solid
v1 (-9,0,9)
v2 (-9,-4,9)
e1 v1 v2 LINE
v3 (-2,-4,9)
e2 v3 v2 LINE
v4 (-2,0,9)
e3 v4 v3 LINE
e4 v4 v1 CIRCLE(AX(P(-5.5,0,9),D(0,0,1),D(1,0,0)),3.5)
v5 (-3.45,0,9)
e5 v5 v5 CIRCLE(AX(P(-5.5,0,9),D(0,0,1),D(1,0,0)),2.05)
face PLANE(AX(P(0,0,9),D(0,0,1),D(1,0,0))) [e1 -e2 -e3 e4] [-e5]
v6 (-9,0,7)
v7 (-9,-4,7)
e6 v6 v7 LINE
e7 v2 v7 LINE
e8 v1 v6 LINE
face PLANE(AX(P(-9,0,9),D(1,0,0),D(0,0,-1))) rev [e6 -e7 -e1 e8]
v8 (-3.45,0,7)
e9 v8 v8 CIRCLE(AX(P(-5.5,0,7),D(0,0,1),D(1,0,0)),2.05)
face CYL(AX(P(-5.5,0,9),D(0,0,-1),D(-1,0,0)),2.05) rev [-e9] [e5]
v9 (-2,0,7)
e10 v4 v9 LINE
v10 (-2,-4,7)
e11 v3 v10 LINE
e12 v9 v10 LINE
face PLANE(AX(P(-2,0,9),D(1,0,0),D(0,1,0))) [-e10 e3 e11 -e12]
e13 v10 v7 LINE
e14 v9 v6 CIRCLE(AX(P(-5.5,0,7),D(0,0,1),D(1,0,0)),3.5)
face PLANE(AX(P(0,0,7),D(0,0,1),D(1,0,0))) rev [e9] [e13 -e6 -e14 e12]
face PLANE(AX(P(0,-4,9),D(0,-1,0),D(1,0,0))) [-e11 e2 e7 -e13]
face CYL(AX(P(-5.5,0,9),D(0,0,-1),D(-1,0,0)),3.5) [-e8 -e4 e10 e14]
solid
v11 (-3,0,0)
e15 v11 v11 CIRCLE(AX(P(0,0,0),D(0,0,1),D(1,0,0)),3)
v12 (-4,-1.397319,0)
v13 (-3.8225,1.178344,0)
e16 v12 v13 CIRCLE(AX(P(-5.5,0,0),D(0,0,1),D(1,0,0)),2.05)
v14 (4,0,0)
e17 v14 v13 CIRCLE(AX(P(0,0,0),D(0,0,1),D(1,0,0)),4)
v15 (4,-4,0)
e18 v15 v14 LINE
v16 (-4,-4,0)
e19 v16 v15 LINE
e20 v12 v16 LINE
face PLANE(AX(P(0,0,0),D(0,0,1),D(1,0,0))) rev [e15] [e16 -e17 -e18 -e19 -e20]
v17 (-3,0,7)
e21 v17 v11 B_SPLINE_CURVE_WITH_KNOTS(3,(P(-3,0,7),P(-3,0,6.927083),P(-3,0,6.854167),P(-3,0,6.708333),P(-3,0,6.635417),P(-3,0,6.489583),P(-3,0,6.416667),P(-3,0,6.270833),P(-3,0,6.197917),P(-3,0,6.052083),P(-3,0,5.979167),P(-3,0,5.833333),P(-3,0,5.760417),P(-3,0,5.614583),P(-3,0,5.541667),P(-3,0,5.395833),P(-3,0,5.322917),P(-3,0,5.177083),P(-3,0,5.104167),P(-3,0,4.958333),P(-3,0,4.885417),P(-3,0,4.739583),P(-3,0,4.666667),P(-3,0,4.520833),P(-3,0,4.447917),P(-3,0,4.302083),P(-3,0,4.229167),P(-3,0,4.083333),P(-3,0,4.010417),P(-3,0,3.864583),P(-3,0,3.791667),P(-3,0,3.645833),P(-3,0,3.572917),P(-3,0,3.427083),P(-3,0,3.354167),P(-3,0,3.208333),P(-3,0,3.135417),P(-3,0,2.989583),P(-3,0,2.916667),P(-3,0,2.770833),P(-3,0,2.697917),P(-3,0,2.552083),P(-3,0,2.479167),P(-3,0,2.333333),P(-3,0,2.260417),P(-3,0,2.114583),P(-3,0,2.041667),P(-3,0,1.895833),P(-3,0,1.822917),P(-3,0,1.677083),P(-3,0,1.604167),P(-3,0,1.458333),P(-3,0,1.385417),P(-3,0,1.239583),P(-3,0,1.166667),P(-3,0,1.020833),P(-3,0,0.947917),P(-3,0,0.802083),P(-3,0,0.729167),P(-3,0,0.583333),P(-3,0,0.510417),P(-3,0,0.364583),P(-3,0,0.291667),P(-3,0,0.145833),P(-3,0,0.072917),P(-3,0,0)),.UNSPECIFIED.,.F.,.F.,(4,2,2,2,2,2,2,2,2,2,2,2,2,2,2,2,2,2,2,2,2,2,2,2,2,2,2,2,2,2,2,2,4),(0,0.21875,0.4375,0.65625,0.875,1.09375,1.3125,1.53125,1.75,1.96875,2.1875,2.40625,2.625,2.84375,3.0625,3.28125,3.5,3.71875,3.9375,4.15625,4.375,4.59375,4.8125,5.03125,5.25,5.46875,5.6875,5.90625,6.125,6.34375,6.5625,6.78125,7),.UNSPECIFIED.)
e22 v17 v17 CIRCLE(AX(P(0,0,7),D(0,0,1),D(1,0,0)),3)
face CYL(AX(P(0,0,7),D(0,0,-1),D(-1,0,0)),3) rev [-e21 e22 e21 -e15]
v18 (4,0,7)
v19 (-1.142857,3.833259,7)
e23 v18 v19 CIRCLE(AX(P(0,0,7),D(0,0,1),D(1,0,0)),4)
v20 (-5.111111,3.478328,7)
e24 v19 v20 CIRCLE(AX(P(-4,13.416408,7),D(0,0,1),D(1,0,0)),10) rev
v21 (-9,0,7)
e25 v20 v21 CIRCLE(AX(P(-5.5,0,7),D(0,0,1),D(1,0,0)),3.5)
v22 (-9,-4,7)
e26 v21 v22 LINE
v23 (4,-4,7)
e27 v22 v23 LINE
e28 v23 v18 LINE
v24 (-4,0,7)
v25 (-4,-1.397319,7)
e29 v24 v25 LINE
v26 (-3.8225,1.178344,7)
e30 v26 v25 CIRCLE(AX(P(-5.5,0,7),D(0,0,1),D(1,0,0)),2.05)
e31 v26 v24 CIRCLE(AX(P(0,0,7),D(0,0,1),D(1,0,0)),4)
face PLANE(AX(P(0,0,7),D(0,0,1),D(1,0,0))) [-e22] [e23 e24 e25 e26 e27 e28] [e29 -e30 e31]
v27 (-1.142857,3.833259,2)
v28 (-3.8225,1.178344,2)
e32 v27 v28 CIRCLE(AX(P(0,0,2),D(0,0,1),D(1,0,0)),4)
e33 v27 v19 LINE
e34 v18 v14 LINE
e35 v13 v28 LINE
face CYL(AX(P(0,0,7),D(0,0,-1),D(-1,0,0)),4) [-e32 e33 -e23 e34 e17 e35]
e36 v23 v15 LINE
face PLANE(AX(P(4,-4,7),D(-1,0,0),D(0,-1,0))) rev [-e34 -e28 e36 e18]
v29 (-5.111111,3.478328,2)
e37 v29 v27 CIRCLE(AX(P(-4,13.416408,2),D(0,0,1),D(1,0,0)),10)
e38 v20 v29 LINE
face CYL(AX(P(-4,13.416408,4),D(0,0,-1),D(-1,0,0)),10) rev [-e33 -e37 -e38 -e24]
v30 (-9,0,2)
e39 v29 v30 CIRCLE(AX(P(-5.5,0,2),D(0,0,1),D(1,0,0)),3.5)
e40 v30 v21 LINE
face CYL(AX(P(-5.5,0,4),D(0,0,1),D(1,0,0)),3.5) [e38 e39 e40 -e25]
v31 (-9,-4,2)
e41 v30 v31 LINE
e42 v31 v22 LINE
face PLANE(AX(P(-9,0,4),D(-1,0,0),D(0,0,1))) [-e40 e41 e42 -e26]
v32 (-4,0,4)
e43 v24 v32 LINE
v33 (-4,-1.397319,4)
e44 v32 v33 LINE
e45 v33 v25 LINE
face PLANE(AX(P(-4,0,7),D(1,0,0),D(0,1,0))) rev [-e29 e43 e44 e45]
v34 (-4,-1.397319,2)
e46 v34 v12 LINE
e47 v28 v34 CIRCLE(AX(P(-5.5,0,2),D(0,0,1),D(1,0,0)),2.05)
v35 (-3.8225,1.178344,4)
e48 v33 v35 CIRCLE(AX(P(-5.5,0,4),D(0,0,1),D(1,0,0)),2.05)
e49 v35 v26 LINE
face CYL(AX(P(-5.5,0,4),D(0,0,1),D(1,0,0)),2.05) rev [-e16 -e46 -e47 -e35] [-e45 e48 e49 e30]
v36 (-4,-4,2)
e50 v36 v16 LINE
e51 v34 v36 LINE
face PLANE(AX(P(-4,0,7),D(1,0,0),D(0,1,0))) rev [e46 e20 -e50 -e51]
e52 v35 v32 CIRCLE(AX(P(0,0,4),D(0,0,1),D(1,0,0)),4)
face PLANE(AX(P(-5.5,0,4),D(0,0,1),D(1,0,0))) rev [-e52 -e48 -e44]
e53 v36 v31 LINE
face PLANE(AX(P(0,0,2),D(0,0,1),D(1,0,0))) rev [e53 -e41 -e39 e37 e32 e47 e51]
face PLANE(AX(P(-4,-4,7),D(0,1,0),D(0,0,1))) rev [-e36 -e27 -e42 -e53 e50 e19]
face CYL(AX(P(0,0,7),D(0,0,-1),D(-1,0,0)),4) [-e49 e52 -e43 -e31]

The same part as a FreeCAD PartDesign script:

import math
import FreeCAD as App
import Part
import Sketcher

V = App.Vector
Q = App.Units.Quantity


def edges_at(feature, points):
    """Names of the edges that pass closest to the given points."""
    edges = feature.Shape.Edges
    near = lambda p: min(range(len(edges)), key=lambda i: edges[i].distToShape(Part.Vertex(*p))[0])
    return sorted({f"Edge{near(p) + 1}" for p in points})

doc = App.newDocument("Part")
body = doc.addObject("PartDesign::Body", "Body")

# Sketch on XY plane
sketch1 = body.newObject("Sketcher::SketchObject", "Sketch")
sketch1.AttachmentSupport = (doc.getObject("XY_Plane"), [""])
sketch1.MapMode = "FlatFace"
sketch1.addGeometry([
    Part.LineSegment(V(-4, 0, 0), V(-4, -4, 0)),  # 0
    Part.LineSegment(V(-4, -4, 0), V(4, -4, 0)),  # 1
    Part.LineSegment(V(4, -4, 0), V(4, 0, 0)),  # 2
    Part.ArcOfCircle(Part.Circle(V(0, 0, 0), V(0, 0, 1), 4), math.radians(0), math.radians(180)),  # 3
    Part.Circle(V(0, 0, 0), V(0, 0, 1), 3),  # 4
], False)
sketch1.addConstraint([
    Sketcher.Constraint("Coincident", 0, 2, 1, 1),
    Sketcher.Constraint("Coincident", 1, 2, 2, 1),
    Sketcher.Constraint("Tangent", 2, 2, 3, 1),
    Sketcher.Constraint("Tangent", 3, 2, 0, 1),
    Sketcher.Constraint("Vertical", 0),
    Sketcher.Constraint("Horizontal", 1),
    Sketcher.Constraint("Vertical", 2),
    Sketcher.Constraint("Coincident", 3, 3, -1, 1),
    Sketcher.Constraint("Coincident", 4, 3, -1, 1),
    Sketcher.Constraint("Diameter", 4, Q("6 mm")),
    Sketcher.Constraint("Radius", 3, Q("4 mm")),
    Sketcher.Constraint("DistanceY", 0, 2, 0, 1, Q("4 mm")),
])
pad1 = body.newObject("PartDesign::Pad", "Pad")
pad1.Profile = sketch1
pad1.Length = 7

# Sketch on XY plane
sketch2 = body.newObject("Sketcher::SketchObject", "Sketch001")
sketch2.AttachmentSupport = (doc.getObject("XY_Plane"), [""])
sketch2.MapMode = "FlatFace"
sketch2.AttachmentOffset = App.Placement(V(0, 0, 4), App.Rotation())
sketch2.addGeometry([
    Part.ArcOfCircle(Part.Circle(V(-5.5, 0, 0), V(0, 0, 1), 3.5), math.radians(47), math.radians(180)),  # 0
    Part.LineSegment(V(-9, 0, 0), V(-9, -4, 0)),  # 1
    Part.LineSegment(V(-9, -4, 0), V(-4, -4, 0)),  # 2
    Part.LineSegment(V(-4, -4, 0), V(-4, -1.4, 0)),  # 3
    Part.ArcOfCircle(Part.Circle(V(-5.5, 0, 0), V(0, 0, 1), 2), math.radians(35), math.radians(317)),  # 4
    Part.ArcOfCircle(Part.Circle(V(0, 0, 0), V(0, 0, 1), 4), math.radians(141), math.radians(163)),  # 5
], False)
sketch2.addConstraint([
    Sketcher.Constraint("Tangent", 0, 2, 1, 1),
    Sketcher.Constraint("Coincident", 1, 2, 2, 1),
    Sketcher.Constraint("Coincident", 2, 2, 3, 1),
    Sketcher.Constraint("Coincident", 3, 2, 4, 2),
    Sketcher.Constraint("Coincident", 4, 1, 5, 2),
    Sketcher.Constraint("Coincident", 5, 1, 0, 1),
    Sketcher.Constraint("Vertical", 1),
    Sketcher.Constraint("Horizontal", 2),
    Sketcher.Constraint("Vertical", 3),
    Sketcher.Constraint("Coincident", 5, 3, -1, 1),
    Sketcher.Constraint("Coincident", 4, 3, 0, 3),
    Sketcher.Constraint("PointOnObject", 0, 3, -1),
    Sketcher.Constraint("Radius", 5, Q("4 mm")),
    Sketcher.Constraint("Radius", 0, Q("3.5 mm")),
    Sketcher.Constraint("DistanceX", 2, 1, 2, 2, Q("5 mm")),
    Sketcher.Constraint("DistanceY", 1, 2, 1, 1, Q("4 mm")),
    Sketcher.Constraint("Radius", 4, Q("2.05 mm")),
    Sketcher.Constraint("DistanceX", 0, 2, -1, 1, Q("9 mm")),
])
pad2 = body.newObject("PartDesign::Pad", "Pad001")
pad2.Profile = sketch2
pad2.Length = 3

# Sketch on XY plane
sketch3 = body.newObject("Sketcher::SketchObject", "Sketch002")
sketch3.AttachmentSupport = (doc.getObject("XY_Plane"), [""])
sketch3.MapMode = "FlatFace"
sketch3.AttachmentOffset = App.Placement(V(0, 0, 2), App.Rotation())
sketch3.addGeometry([
    Part.ArcOfCircle(Part.Circle(V(-5.5, 0, 0), V(0, 0, 1), 3.5), math.radians(47), math.radians(180)),  # 0
    Part.LineSegment(V(-9, 0, 0), V(-9, -4, 0)),  # 1
    Part.LineSegment(V(-9, -4, 0), V(-4, -4, 0)),  # 2
    Part.LineSegment(V(-4, -4, 0), V(-4, -1.4, 0)),  # 3
    Part.ArcOfCircle(Part.Circle(V(-5.5, 0, 0), V(0, 0, 1), 2), math.radians(35), math.radians(317)),  # 4
    Part.ArcOfCircle(Part.Circle(V(0, 0, 0), V(0, 0, 1), 4), math.radians(141), math.radians(163)),  # 5
], False)
sketch3.addConstraint([
    Sketcher.Constraint("Tangent", 0, 2, 1, 1),
    Sketcher.Constraint("Coincident", 1, 2, 2, 1),
    Sketcher.Constraint("Coincident", 2, 2, 3, 1),
    Sketcher.Constraint("Coincident", 3, 2, 4, 2),
    Sketcher.Constraint("Coincident", 4, 1, 5, 2),
    Sketcher.Constraint("Coincident", 5, 1, 0, 1),
    Sketcher.Constraint("Vertical", 1),
    Sketcher.Constraint("Horizontal", 2),
    Sketcher.Constraint("Vertical", 3),
    Sketcher.Constraint("Coincident", 5, 3, -1, 1),
    Sketcher.Constraint("Coincident", 4, 3, 0, 3),
    Sketcher.Constraint("PointOnObject", 0, 3, -1),
    Sketcher.Constraint("Radius", 5, Q("4 mm")),
    Sketcher.Constraint("Radius", 0, Q("3.5 mm")),
    Sketcher.Constraint("DistanceX", 2, 1, 2, 2, Q("5 mm")),
    Sketcher.Constraint("DistanceY", 1, 2, 1, 1, Q("4 mm")),
    Sketcher.Constraint("Radius", 4, Q("2.05 mm")),
    Sketcher.Constraint("DistanceX", 0, 2, -1, 1, Q("9 mm")),
])
pad3 = body.newObject("PartDesign::Pad", "Pad002")
pad3.Profile = sketch3
pad3.Length = 2
doc.recompute()

fillet = body.newObject("PartDesign::Fillet", "Fillet")
fillet.Base = (pad3, edges_at(pad3, [(-3.091, 2.539, 4.5)]))
fillet.Radius = 10

# Sketch on XY plane
sketch4 = body.newObject("Sketcher::SketchObject", "Sketch003")
sketch4.AttachmentSupport = (doc.getObject("XY_Plane"), [""])
sketch4.MapMode = "FlatFace"
sketch4.AttachmentOffset = App.Placement(V(0, 0, -3), App.Rotation())
sketch4.addGeometry(Part.Circle(V(-5.5, 0, 0), V(0, 0, 1), 2), False)
sketch4.addConstraint([
    Sketcher.Constraint("PointOnObject", 0, 3, -1),
    Sketcher.Constraint("Diameter", 0, Q("4.1 mm")),
    Sketcher.Constraint("DistanceX", 0, 3, -1, 1, Q("5.5 mm")),
])
pocket1 = body.newObject("PartDesign::Pocket", "Pocket")
pocket1.Profile = sketch4
pocket1.Length = 7
pocket1.Reversed = True
body2 = doc.addObject("PartDesign::Body", "Body001")

# Sketch on XY plane
sketch5 = body2.newObject("Sketcher::SketchObject", "Sketch004")
sketch5.AttachmentSupport = (doc.getObject("XY_Plane001"), [""])
sketch5.MapMode = "FlatFace"
sketch5.AttachmentOffset = App.Placement(V(0, 0, 7), App.Rotation())
sketch5.addGeometry([
    Part.LineSegment(V(-9, 0, 0), V(-9, -4, 0)),  # 0
    Part.LineSegment(V(-9, -4, 0), V(-2, -4, 0)),  # 1
    Part.LineSegment(V(-2, -4, 0), V(-2, 0, 0)),  # 2
    Part.ArcOfCircle(Part.Circle(V(-5.5, 0, 0), V(0, 0, 1), 3.5), math.radians(0), math.radians(180)),  # 3
    Part.Circle(V(-5.5, 0, 0), V(0, 0, 1), 2),  # 4
], False)
sketch5.addConstraint([
    Sketcher.Constraint("Coincident", 0, 2, 1, 1),
    Sketcher.Constraint("Coincident", 1, 2, 2, 1),
    Sketcher.Constraint("Tangent", 2, 2, 3, 1),
    Sketcher.Constraint("Tangent", 3, 2, 0, 1),
    Sketcher.Constraint("Vertical", 0),
    Sketcher.Constraint("Horizontal", 1),
    Sketcher.Constraint("Vertical", 2),
    Sketcher.Constraint("Coincident", 4, 3, 3, 3),
    Sketcher.Constraint("PointOnObject", 3, 3, -1),
    Sketcher.Constraint("Diameter", 4, Q("4.1 mm")),
    Sketcher.Constraint("Radius", 3, Q("3.5 mm")),
    Sketcher.Constraint("DistanceY", 0, 2, 0, 1, Q("4 mm")),
    Sketcher.Constraint("DistanceX", 0, 2, -1, 1, Q("9 mm")),
])
pad4 = body2.newObject("PartDesign::Pad", "Pad003")
pad4.Profile = sketch5
pad4.Length = 2

doc.recompute()
